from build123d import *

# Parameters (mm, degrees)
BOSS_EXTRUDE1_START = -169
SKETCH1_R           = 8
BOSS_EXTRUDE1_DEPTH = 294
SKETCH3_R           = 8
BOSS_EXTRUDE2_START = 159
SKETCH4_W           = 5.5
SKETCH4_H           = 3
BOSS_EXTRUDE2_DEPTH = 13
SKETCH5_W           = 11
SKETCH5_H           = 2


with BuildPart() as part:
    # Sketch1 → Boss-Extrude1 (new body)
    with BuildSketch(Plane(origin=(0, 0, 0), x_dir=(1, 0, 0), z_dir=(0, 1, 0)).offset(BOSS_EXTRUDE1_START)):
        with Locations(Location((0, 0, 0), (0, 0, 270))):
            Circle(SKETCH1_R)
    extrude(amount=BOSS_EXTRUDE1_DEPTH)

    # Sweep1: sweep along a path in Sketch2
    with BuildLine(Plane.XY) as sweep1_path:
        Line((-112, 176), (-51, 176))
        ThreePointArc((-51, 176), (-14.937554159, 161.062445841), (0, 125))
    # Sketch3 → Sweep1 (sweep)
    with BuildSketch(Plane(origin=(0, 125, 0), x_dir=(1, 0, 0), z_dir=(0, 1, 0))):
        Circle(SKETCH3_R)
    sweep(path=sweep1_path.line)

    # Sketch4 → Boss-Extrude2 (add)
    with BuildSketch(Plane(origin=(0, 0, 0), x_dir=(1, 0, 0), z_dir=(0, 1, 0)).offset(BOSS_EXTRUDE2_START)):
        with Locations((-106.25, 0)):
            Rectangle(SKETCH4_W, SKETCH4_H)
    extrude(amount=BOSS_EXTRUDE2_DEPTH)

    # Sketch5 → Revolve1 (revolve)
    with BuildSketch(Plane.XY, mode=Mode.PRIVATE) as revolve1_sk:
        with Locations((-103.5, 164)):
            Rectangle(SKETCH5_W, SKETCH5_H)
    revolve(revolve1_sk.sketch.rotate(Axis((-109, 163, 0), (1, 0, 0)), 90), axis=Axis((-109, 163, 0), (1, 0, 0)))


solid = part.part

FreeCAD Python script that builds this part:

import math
import FreeCAD as App
import Part
import Sketcher

V = App.Vector


def add_polygon(sketch, points):
    """Adds a closed chain of lines whose ends are joined by coincident constraints."""
    first, n = sketch.GeometryCount, len(points)
    for a, b in zip(points, points[1:] + points[:1]):
        sketch.addGeometry(Part.LineSegment(App.Vector(*a, 0), App.Vector(*b, 0)), False)
    for i in range(n):
        sketch.addConstraint(Sketcher.Constraint("Coincident", first + i, 2, first + (i + 1) % n, 1))

doc = App.newDocument("Part")
body = doc.addObject("PartDesign::Body", "Body")

sketch1 = body.newObject("Sketcher::SketchObject", "Sketch")
sketch1.AttachmentSupport = (doc.getObject("XZ_Plane"), [""])
sketch1.MapMode = "FlatFace"
sketch1.AttachmentOffset = App.Placement(V(0, 0, 169), App.Rotation())
sketch1.addGeometry(Part.Circle(V(0, 0, 0), V(0, 0, 1), 8), False)
sketch1.addConstraint([
    Sketcher.Constraint("Coincident", 0, 3, -1, 1),
    Sketcher.Constraint("Diameter", 0, 16.0),
])
pad1 = body.newObject("PartDesign::Pad", "Pad")
pad1.Profile = sketch1
pad1.Length = 294
pad1.Reversed = True

sketch2 = body.newObject("Sketcher::SketchObject", "Sketch001")
sketch2.AttachmentSupport = (doc.getObject("XZ_Plane"), [""])
sketch2.MapMode = "FlatFace"
sketch2.AttachmentOffset = App.Placement(V(0, 0, -125), App.Rotation())
sketch2.addGeometry(Part.Circle(V(0, 0, 0), V(0, 0, 1), 8), False)
sketch2.addConstraint([
    Sketcher.Constraint("Coincident", 0, 3, -1, 1),
    Sketcher.Constraint("Diameter", 0, 16.0),
])

sketch3 = body.newObject("Sketcher::SketchObject", "Sketch002")
sketch3.AttachmentSupport = (doc.getObject("XY_Plane"), [""])
sketch3.MapMode = "FlatFace"
sketch3.addGeometry([
    Part.LineSegment(V(-112, 176, 0), V(-51, 176, 0)),
    Part.ArcOfCircle(Part.Circle(V(-51, 125, 0), V(0, 0, 1), 51), math.radians(0), math.radians(90)),
], False)
sketch3.addConstraint([
    Sketcher.Constraint("Tangent", 0, 2, 1, 2),
    Sketcher.Constraint("Horizontal", 0),
    Sketcher.Constraint("PointOnObject", 1, 1, -2),
    Sketcher.Constraint("Radius", 1, 51.0),
    Sketcher.Constraint("DistanceX", 0, 1, 0, 2, 61.0),
    Sketcher.Constraint("DistanceY", -1, 1, 1, 3, 125.0),
    Sketcher.Constraint("DistanceY", -1, 1, 1, 1, 125.0),
])
doc.recompute()

additivepipe = body.newObject("PartDesign::AdditivePipe", "AdditivePipe")
additivepipe.Profile = sketch2
additivepipe.Spine = (sketch3, ["Edge1", "Edge2"])

sketch4 = body.newObject("Sketcher::SketchObject", "Sketch003")
sketch4.AttachmentSupport = (doc.getObject("XZ_Plane"), [""])
sketch4.MapMode = "FlatFace"
sketch4.AttachmentOffset = App.Placement(V(0, 0, -159), App.Rotation())
add_polygon(sketch4, [(-109, -1.5), (-109, 1.5), (-103.5, 1.5), (-103.5, -1.5)])
sketch4.addConstraint([
    Sketcher.Constraint("Vertical", 0),
    Sketcher.Constraint("Horizontal", 1),
    Sketcher.Constraint("Vertical", 2),
    Sketcher.Constraint("Horizontal", 3),
    Sketcher.Constraint("DistanceY", 0, 1, 0, 2, 3.0),
    Sketcher.Constraint("DistanceX", 1, 1, 1, 2, 5.5),
    Sketcher.Constraint("DistanceX", 0, 2, -1, 1, 109.0),
    Sketcher.Constraint("DistanceY", -1, 1, 0, 2, 1.5),
])
pad2 = body.newObject("PartDesign::Pad", "Pad001")
pad2.Profile = sketch4
pad2.Length = 13
pad2.Reversed = True

sketch5 = body.newObject("Sketcher::SketchObject", "Sketch004")
sketch5.AttachmentSupport = (doc.getObject("XY_Plane"), [""])
sketch5.MapMode = "FlatFace"
add_polygon(sketch5, [(-109, 165), (-109, 163), (-98, 163), (-98, 165)])
sketch5.addGeometry(Part.LineSegment(V(-109, 163, 0), V(-98, 163, 0)), True)
sketch5.addConstraint([
    Sketcher.Constraint("Vertical", 0),
    Sketcher.Constraint("Horizontal", 1),
    Sketcher.Constraint("Vertical", 2),
    Sketcher.Constraint("Horizontal", 3),
    Sketcher.Constraint("Horizontal", 4),
    Sketcher.Constraint("Coincident", 4, 1, 0, 2),
    Sketcher.Constraint("Vertical", 2, 2, 4, 2),
    Sketcher.Constraint("DistanceX", 1, 1, 1, 2, 11.0),
    Sketcher.Constraint("DistanceY", 0, 2, 0, 1, 2.0),
    Sketcher.Constraint("DistanceX", 0, 2, -1, 1, 109.0),
    Sketcher.Constraint("DistanceY", -1, 1, 0, 2, 163.0),
])
revolution = body.newObject("PartDesign::Revolution", "Revolution")
revolution.Profile = sketch5
revolution.ReferenceAxis = (sketch5, ["Axis0"])
revolution.Angle = 360

doc.recompute()
